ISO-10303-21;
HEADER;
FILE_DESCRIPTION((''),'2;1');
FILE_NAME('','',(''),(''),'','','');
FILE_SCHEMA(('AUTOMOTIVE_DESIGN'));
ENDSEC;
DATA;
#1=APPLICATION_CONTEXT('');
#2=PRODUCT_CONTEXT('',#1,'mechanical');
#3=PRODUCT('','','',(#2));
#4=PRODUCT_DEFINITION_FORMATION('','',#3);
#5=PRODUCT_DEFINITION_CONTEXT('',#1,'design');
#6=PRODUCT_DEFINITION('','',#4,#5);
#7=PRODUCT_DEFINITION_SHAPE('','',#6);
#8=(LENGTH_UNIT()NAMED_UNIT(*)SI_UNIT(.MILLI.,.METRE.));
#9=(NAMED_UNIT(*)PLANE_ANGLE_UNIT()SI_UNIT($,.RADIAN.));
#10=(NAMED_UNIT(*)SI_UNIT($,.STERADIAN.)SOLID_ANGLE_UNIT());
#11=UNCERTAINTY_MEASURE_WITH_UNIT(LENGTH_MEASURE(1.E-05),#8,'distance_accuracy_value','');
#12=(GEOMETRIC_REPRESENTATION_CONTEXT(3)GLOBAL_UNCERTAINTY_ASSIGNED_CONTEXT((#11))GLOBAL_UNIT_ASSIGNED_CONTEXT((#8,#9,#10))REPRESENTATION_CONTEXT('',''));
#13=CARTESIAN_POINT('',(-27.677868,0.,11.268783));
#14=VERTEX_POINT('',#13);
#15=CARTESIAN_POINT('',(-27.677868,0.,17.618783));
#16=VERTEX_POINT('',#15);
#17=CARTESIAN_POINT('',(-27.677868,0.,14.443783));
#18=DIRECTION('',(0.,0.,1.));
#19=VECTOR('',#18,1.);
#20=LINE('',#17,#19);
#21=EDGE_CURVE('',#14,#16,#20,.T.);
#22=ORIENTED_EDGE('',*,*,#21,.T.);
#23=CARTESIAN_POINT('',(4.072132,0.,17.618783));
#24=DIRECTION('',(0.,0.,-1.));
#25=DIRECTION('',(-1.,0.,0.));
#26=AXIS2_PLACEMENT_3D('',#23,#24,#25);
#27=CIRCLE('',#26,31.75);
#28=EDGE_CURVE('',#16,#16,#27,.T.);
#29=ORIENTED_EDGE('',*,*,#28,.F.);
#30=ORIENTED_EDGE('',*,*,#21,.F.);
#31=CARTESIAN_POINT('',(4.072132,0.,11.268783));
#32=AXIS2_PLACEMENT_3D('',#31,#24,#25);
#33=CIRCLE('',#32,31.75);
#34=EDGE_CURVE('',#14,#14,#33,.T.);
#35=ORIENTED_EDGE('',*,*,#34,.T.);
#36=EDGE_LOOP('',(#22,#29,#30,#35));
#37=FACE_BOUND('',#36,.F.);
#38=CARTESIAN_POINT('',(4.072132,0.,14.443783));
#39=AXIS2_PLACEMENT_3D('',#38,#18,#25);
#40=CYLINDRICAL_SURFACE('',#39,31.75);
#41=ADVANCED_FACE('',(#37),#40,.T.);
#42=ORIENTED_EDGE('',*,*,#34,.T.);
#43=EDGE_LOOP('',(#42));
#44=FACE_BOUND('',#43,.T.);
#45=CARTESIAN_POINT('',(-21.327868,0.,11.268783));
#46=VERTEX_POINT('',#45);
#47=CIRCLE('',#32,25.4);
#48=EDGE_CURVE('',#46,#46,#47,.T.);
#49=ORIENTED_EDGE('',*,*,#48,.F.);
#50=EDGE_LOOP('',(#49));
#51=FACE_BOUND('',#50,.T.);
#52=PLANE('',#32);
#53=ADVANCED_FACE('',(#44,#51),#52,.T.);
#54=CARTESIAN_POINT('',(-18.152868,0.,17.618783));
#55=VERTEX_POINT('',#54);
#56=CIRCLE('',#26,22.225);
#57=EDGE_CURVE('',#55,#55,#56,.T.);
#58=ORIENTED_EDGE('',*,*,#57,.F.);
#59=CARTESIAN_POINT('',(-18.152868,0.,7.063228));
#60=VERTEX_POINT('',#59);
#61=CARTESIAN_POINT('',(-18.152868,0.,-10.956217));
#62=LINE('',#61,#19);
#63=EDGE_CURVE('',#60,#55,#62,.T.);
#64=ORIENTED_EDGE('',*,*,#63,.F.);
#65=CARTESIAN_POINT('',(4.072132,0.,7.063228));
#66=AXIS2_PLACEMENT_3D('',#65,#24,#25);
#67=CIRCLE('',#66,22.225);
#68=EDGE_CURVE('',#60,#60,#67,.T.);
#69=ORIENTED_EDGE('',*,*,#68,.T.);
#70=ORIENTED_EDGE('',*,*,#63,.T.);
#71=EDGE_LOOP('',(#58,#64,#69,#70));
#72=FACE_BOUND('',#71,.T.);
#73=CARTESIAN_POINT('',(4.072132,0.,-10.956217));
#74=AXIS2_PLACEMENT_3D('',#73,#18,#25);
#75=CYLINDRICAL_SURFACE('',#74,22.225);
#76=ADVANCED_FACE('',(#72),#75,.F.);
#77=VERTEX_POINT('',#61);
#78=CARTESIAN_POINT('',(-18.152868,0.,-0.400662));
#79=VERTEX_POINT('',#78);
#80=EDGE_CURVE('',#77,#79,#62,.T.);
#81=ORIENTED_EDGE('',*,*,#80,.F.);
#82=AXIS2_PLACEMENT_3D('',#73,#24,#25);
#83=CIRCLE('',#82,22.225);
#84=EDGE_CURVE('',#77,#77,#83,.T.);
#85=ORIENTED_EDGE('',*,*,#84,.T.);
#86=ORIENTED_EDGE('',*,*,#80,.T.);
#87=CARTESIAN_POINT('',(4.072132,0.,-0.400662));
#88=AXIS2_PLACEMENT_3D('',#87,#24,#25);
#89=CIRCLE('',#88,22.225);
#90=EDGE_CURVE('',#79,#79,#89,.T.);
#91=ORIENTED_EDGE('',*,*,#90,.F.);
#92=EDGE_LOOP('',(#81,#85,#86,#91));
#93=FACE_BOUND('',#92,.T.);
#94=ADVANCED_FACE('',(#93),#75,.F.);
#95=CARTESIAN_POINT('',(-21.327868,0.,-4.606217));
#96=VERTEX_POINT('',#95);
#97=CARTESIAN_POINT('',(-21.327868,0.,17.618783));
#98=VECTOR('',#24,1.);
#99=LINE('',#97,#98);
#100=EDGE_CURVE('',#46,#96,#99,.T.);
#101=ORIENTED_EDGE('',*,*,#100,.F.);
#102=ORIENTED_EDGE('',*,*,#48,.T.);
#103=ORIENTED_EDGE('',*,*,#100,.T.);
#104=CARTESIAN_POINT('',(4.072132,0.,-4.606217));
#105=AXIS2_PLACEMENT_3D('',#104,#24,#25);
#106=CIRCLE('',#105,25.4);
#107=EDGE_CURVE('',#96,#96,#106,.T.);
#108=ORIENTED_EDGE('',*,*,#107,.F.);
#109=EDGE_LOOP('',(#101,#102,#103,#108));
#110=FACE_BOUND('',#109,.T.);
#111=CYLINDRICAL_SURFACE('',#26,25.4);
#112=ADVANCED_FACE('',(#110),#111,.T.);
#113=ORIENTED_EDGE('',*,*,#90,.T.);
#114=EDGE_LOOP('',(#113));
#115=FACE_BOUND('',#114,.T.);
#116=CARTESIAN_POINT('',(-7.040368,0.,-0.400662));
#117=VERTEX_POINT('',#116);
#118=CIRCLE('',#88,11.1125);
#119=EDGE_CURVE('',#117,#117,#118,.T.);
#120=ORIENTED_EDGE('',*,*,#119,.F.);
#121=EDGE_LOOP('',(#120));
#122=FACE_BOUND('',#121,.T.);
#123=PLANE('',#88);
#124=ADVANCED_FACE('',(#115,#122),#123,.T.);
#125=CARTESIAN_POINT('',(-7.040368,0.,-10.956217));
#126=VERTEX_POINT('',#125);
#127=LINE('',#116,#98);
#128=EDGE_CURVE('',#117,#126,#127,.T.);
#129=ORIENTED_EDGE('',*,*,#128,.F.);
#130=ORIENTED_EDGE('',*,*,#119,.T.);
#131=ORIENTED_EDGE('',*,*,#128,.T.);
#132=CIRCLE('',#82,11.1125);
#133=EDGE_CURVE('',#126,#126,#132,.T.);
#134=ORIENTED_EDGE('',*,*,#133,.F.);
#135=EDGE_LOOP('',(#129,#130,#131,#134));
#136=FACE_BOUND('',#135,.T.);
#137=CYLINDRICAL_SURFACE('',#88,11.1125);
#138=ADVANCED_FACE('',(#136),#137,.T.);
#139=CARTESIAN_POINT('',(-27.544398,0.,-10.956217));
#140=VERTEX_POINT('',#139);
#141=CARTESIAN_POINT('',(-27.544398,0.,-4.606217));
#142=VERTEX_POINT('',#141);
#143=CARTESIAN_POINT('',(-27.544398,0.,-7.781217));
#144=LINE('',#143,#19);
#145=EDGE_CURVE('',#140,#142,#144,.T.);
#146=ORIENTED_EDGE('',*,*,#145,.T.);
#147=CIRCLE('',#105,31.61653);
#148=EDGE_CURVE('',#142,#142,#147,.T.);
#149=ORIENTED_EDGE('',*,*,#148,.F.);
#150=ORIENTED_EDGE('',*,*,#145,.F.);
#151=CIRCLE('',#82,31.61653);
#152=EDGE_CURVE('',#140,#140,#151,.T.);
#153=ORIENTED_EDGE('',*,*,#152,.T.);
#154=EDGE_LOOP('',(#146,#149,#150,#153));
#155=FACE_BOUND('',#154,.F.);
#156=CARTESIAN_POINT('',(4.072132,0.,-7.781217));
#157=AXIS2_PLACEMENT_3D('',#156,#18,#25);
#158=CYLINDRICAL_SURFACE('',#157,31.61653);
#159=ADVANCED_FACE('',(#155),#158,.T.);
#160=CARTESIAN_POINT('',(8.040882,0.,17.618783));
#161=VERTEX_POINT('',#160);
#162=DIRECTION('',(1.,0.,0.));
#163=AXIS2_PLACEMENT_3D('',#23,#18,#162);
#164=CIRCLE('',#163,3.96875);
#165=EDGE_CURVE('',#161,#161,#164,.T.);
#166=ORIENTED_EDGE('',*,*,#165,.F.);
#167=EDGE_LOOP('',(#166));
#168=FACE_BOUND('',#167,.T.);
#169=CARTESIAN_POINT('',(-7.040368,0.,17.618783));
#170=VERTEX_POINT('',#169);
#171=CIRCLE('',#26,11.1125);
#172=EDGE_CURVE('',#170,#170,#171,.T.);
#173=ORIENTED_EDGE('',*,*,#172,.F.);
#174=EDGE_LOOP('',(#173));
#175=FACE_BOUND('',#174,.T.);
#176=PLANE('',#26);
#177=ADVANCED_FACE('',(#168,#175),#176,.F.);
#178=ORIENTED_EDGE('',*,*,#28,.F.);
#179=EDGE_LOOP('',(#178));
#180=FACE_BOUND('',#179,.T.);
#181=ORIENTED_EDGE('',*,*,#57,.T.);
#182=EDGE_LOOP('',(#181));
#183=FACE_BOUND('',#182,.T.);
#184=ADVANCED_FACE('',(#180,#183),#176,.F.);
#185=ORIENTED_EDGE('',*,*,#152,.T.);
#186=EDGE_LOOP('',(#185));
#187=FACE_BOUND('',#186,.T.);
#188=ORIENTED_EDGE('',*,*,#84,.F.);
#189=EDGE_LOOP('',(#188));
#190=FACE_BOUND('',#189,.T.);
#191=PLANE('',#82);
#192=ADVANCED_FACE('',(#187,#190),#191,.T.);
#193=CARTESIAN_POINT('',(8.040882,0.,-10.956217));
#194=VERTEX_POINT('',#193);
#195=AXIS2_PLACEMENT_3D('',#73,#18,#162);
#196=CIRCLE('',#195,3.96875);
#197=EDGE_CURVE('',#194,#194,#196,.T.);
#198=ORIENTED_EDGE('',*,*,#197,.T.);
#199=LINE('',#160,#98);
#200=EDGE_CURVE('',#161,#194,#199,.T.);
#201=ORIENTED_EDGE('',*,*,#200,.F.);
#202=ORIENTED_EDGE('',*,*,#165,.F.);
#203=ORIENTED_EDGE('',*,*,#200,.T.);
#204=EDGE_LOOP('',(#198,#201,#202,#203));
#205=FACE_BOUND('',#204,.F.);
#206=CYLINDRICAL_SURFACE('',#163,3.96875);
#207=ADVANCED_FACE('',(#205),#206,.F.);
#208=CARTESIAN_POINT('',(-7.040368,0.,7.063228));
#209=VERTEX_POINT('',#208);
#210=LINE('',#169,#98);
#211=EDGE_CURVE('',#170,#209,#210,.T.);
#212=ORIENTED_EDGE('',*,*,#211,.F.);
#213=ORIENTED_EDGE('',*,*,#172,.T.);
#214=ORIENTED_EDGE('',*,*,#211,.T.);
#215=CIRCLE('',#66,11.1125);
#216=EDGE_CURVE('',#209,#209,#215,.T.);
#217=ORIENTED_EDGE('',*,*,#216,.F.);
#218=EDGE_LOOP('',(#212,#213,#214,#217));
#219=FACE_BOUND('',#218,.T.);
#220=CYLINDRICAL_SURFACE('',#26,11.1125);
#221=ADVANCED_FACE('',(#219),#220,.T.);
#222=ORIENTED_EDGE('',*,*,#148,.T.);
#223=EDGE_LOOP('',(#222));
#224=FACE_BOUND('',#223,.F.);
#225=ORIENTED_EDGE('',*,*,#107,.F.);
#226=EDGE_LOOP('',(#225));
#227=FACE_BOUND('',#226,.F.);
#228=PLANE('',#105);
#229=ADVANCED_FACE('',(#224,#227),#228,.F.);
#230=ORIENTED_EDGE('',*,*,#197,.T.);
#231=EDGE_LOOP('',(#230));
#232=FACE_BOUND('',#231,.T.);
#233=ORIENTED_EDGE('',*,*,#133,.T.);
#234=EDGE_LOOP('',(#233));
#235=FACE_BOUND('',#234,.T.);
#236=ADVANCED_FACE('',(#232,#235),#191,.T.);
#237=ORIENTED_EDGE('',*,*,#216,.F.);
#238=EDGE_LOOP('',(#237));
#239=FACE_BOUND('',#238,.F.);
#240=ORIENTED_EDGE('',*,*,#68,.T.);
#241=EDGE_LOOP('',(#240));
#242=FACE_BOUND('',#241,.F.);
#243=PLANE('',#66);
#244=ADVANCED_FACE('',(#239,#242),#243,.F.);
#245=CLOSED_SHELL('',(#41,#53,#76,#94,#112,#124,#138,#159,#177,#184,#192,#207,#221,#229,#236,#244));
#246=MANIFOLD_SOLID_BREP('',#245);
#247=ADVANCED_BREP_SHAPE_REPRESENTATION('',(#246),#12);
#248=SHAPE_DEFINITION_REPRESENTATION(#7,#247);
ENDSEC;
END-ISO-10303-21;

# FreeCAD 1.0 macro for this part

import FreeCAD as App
import Part
import Sketcher

V = App.Vector
Q = App.Units.Quantity


def add_polygon(sketch, points):
    """Adds a closed chain of lines whose ends are joined by coincident constraints."""
    first, n = sketch.GeometryCount, len(points)
    for a, b in zip(points, points[1:] + points[:1]):
        sketch.addGeometry(Part.LineSegment(App.Vector(*a, 0), App.Vector(*b, 0)), False)
    for i in range(n):
        sketch.addConstraint(Sketcher.Constraint("Coincident", first + i, 2, first + (i + 1) % n, 1))

doc = App.newDocument("Part")
body = doc.addObject("PartDesign::Body", "Body")

# Sketch on XZ plane
sketch1 = body.newObject("Sketcher::SketchObject", "Sketch")
sketch1.AttachmentSupport = (doc.getObject("XZ_Plane"), [""])
sketch1.MapMode = "FlatFace"
add_polygon(sketch1, [(-27.544398, -4.606217), (-27.544398, -10.956217), (-18.152868, -10.956217), (-18.152868, -0.400662), (-7.040368, -0.400662), (-7.040368, -10.956217), (4.072132, -10.956217), (4.072132, 17.618783), (-7.040368, 17.618783), (-7.040368, 7.063228), (-18.152868, 7.063228), (-18.152868, 17.618783), (-27.677868, 17.618783), (-27.677868, 11.268783), (-21.327868, 11.268783), (-21.327868, -4.606217)])  # lines 0-15
sketch1.addGeometry(Part.LineSegment(V(4.072132, 17.618783, 0), V(4.072132, -10.956217, 0)), True)  # axis
sketch1.addConstraint(Sketcher.Constraint("Vertical", 0))
sketch1.addConstraint(Sketcher.Constraint("Horizontal", 1))
sketch1.addConstraint(Sketcher.Constraint("Vertical", 2))
sketch1.addConstraint(Sketcher.Constraint("Horizontal", 3))
sketch1.addConstraint(Sketcher.Constraint("Vertical", 4))
sketch1.addConstraint(Sketcher.Constraint("Horizontal", 5))
sketch1.addConstraint(Sketcher.Constraint("Vertical", 6))
sketch1.addConstraint(Sketcher.Constraint("Horizontal", 7))
sketch1.addConstraint(Sketcher.Constraint("Vertical", 8))
sketch1.addConstraint(Sketcher.Constraint("Horizontal", 9))
sketch1.addConstraint(Sketcher.Constraint("Vertical", 10))
sketch1.addConstraint(Sketcher.Constraint("Horizontal", 11))
sketch1.addConstraint(Sketcher.Constraint("Vertical", 12))
sketch1.addConstraint(Sketcher.Constraint("Horizontal", 13))
sketch1.addConstraint(Sketcher.Constraint("Vertical", 14))
sketch1.addConstraint(Sketcher.Constraint("Horizontal", 15))
sketch1.addConstraint(Sketcher.Constraint("Vertical", 16))
sketch1.addConstraint(Sketcher.Constraint("Coincident", 16, 1, 6, 2))
sketch1.addConstraint(Sketcher.Constraint("Horizontal", 1, 2, 4, 2))
sketch1.addConstraint(Sketcher.Constraint("Horizontal", 7, 2, 10, 2))
sketch1.addConstraint(Sketcher.Constraint("Horizontal", 4, 2, 16, 2))
sketch1.addConstraint(Sketcher.Constraint("Vertical", 4, 2, 7, 2))
sketch1.addConstraint(Sketcher.Constraint("Vertical", 2, 2, 9, 2))
sketch1.addConstraint(Sketcher.Constraint("Equal", 3, 5))
sketch1.addConstraint(Sketcher.Constraint("Equal", 13, 0))
sketch1.addConstraint(Sketcher.Constraint("Equal", 4, 8))
sketch1.addConstraint(Sketcher.Constraint("Equal", 0, 12))
sketch1.addConstraint(Sketcher.Constraint("DistanceX", 13, 1, 13, 2, Q("0.25 in")))
sketch1.addConstraint(Sketcher.Constraint("DistanceX", 3, 1, 3, 2, Q("0.4375 in")))
sketch1.addConstraint(Sketcher.Constraint("DistanceX", 11, 2, 11, 1, Q("0.375 in")))
sketch1.addConstraint(Sketcher.Constraint("DistanceY", 6, 1, 6, 2, Q("1.125 in")))
sketch1.addConstraint(Sketcher.Constraint("DistanceX", 1, 1, 1, 2, 9.39153))
sketch1.addConstraint(Sketcher.Constraint("DistanceX", 0, 2, -1, 1, 27.544398))
sketch1.addConstraint(Sketcher.Constraint("DistanceY", 2, 1, 2, 2, 10.555555))
sketch1.addConstraint(Sketcher.Constraint("DistanceY", 0, 2, -1, 1, 10.956217))
revolution = body.newObject("PartDesign::Revolution", "Revolution")
revolution.Profile = sketch1
revolution.ReferenceAxis = (sketch1, ["Axis0"])
revolution.Angle = 360

# Sketch on XY plane
sketch2 = body.newObject("Sketcher::SketchObject", "Sketch001")
sketch2.AttachmentSupport = (doc.getObject("XY_Plane"), [""])
sketch2.MapMode = "FlatFace"
sketch2.AttachmentOffset = App.Placement(V(0, 0, 17.618783), App.Rotation())
sketch2.addGeometry(Part.Circle(V(4.072132, 0, 0), V(0, 0, 1), 3.96875), False)
sketch2.addConstraint(Sketcher.Constraint("PointOnObject", 0, 3, -1))
sketch2.addConstraint(Sketcher.Constraint("Diameter", 0, Q("0.3125 in")))
sketch2.addConstraint(Sketcher.Constraint("DistanceX", -1, 1, 0, 3, 4.072132))
pocket1 = body.newObject("PartDesign::Pocket", "Pocket")
pocket1.Profile = sketch2
pocket1.Type = "ThroughAll"

doc.recompute()
